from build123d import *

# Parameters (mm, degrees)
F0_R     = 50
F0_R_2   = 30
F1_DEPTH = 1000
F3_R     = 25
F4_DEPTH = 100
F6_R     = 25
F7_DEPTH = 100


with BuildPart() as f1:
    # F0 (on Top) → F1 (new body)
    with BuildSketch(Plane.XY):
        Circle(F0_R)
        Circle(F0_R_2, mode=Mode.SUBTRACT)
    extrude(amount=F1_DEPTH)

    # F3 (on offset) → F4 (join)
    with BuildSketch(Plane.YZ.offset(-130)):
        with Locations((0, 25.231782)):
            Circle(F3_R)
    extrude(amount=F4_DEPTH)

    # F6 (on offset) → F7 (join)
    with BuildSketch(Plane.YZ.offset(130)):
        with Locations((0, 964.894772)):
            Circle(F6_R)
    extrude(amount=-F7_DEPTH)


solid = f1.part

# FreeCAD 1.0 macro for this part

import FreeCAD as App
import Part
import Sketcher
from FreeCAD import Vector
Q = App.Units.Quantity

doc = App.newDocument("Part")
body = doc.addObject("PartDesign::Body", "Body")

# Sketch on XY plane
sketch1 = body.newObject("Sketcher::SketchObject", "Sketch")
sketch1.AttachmentSupport = (doc.getObject("XY_Plane"), [""])
sketch1.MapMode = "FlatFace"
sketch1.addGeometry(Part.Circle(Vector(0, 0, 0), Vector(0, 0, 1), 50), False)
sketch1.addGeometry(Part.Circle(Vector(0, 0, 0), Vector(0, 0, 1), 30), False)
sketch1.addConstraint(Sketcher.Constraint("Coincident", 0, 3, -1, 1))
sketch1.addConstraint(Sketcher.Constraint("Coincident", 1, 3, -1, 1))
sketch1.addConstraint(Sketcher.Constraint("Diameter", 0, Q("100 mm")))
sketch1.addConstraint(Sketcher.Constraint("Diameter", 1, Q("60 mm")))
pad1 = body.newObject("PartDesign::Pad", "Pad")
pad1.Profile = sketch1
pad1.Length = 1000

# Sketch on YZ plane
sketch2 = body.newObject("Sketcher::SketchObject", "Sketch001")
sketch2.AttachmentSupport = (doc.getObject("YZ_Plane"), [""])
sketch2.MapMode = "FlatFace"
sketch2.AttachmentOffset = App.Placement(Vector(0, 0, -130), App.Rotation())
sketch2.addGeometry(Part.Circle(Vector(0, 25, 0), Vector(0, 0, 1), 25), False)
sketch2.addConstraint(Sketcher.Constraint("PointOnObject", 0, 3, -2))
sketch2.addConstraint(Sketcher.Constraint("Diameter", 0, Q("50 mm")))
sketch2.addConstraint(Sketcher.Constraint("DistanceY", -1, 1, 0, 3, Q("25.231782 mm")))
pad2 = body.newObject("PartDesign::Pad", "Pad001")
pad2.Profile = sketch2
pad2.Length = 100

# Sketch on YZ plane
sketch3 = body.newObject("Sketcher::SketchObject", "Sketch002")
sketch3.AttachmentSupport = (doc.getObject("YZ_Plane"), [""])
sketch3.MapMode = "FlatFace"
sketch3.AttachmentOffset = App.Placement(Vector(0, 0, 130), App.Rotation())
sketch3.addGeometry(Part.Circle(Vector(0, 965, 0), Vector(0, 0, 1), 25), False)
sketch3.addConstraint(Sketcher.Constraint("PointOnObject", 0, 3, -2))
sketch3.addConstraint(Sketcher.Constraint("Diameter", 0, Q("50 mm")))
sketch3.addConstraint(Sketcher.Constraint("DistanceY", -1, 1, 0, 3, Q("964.894772 mm")))
pad3 = body.newObject("PartDesign::Pad", "Pad002")
pad3.Profile = sketch3
pad3.Length = 100
pad3.Reversed = True

doc.recompute()
